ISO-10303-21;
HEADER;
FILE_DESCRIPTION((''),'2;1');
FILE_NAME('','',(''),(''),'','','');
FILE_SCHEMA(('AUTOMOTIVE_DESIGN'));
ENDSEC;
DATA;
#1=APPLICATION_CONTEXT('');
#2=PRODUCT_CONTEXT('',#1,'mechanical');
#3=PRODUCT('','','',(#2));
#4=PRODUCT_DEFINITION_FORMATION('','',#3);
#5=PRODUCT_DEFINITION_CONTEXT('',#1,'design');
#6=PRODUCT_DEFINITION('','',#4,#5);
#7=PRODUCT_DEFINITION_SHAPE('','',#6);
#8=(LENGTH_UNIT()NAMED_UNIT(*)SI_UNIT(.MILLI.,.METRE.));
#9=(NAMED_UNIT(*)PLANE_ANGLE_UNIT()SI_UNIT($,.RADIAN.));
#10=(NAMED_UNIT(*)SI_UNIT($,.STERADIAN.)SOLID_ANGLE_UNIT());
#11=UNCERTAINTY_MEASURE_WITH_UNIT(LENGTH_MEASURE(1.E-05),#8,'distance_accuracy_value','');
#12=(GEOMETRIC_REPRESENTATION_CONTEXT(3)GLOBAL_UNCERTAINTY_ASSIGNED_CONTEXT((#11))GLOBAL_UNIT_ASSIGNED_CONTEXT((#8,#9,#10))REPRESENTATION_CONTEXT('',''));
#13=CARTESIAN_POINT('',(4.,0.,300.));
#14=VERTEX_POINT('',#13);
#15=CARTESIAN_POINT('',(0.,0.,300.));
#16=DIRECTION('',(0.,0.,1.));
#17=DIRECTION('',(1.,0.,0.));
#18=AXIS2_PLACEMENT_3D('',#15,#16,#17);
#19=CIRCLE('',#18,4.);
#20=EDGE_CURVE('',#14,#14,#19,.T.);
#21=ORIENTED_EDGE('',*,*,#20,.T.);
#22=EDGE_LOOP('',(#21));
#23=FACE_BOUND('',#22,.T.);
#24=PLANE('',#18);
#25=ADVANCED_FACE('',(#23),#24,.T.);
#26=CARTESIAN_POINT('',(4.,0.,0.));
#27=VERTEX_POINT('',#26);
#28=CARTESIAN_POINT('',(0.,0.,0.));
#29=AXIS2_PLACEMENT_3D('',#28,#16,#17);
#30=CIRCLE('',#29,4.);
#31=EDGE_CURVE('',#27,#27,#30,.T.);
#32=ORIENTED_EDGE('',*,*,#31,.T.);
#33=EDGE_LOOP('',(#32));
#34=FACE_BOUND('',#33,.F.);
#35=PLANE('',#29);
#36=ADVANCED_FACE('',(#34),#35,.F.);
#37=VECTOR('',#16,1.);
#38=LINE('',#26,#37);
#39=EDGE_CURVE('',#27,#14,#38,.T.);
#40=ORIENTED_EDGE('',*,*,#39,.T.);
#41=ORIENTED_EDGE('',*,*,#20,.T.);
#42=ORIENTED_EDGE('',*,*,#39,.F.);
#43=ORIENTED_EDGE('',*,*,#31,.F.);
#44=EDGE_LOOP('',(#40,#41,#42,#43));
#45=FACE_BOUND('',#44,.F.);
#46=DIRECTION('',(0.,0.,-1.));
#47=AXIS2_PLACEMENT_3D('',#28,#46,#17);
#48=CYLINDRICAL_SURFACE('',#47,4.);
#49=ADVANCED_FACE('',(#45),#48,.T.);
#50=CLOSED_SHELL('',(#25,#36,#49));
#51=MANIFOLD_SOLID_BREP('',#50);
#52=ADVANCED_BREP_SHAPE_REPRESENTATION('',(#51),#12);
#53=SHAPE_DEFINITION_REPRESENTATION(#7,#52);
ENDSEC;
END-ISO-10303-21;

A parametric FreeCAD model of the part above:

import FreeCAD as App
import Part
import Sketcher
Q = App.Units.Quantity

doc = App.newDocument("Part")
body = doc.addObject("PartDesign::Body", "Body")

# Sketch on XY plane
sketch1 = body.newObject("Sketcher::SketchObject", "Sketch")
sketch1.AttachmentSupport = (doc.getObject("XY_Plane"), [""])
sketch1.MapMode = "FlatFace"
sketch1.addGeometry(Part.Circle(App.Vector(0, 0, 0), App.Vector(0, 0, 1), 4), False)
sketch1.addConstraint([
    Sketcher.Constraint("Coincident", 0, 3, -1, 1),
    Sketcher.Constraint("Diameter", 0, Q("8 mm")),
])
pad1 = body.newObject("PartDesign::Pad", "Pad")
pad1.Profile = sketch1
pad1.Length = 300

doc.recompute()
